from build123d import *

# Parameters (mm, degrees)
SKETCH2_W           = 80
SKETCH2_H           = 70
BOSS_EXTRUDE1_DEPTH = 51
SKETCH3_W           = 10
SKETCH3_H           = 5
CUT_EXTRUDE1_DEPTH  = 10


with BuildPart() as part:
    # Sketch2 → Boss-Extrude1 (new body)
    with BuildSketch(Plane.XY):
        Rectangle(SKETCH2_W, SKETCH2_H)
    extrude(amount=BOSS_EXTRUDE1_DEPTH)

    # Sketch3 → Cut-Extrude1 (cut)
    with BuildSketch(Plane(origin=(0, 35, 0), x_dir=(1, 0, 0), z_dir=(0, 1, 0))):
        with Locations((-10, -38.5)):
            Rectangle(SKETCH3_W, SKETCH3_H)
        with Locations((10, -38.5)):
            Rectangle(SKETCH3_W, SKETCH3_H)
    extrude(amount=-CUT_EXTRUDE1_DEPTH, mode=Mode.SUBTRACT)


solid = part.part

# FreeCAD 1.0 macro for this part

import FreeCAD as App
import Part
import Sketcher

doc = App.newDocument("Part")
body = doc.addObject("PartDesign::Body", "Body")

sketch1 = body.newObject("Sketcher::SketchObject", "Sketch")
sketch1.AttachmentSupport = (doc.getObject("XY_Plane"), [""])
sketch1.MapMode = "FlatFace"
sketch1.addGeometry([
    Part.LineSegment(App.Vector(-40, 35, 0), App.Vector(-40, -35, 0)),
    Part.LineSegment(App.Vector(-40, -35, 0), App.Vector(40, -35, 0)),
    Part.LineSegment(App.Vector(40, -35, 0), App.Vector(40, 35, 0)),
    Part.LineSegment(App.Vector(40, 35, 0), App.Vector(-40, 35, 0)),
], False)
sketch1.addConstraint([
    Sketcher.Constraint("Coincident", 0, 2, 1, 1),
    Sketcher.Constraint("Coincident", 1, 2, 2, 1),
    Sketcher.Constraint("Coincident", 2, 2, 3, 1),
    Sketcher.Constraint("Coincident", 3, 2, 0, 1),
    Sketcher.Constraint("Vertical", 0),
    Sketcher.Constraint("Horizontal", 1),
    Sketcher.Constraint("Vertical", 2),
    Sketcher.Constraint("Horizontal", 3),
    Sketcher.Constraint("Symmetric", 0, 2, 2, 2, -1, 1),
    Sketcher.Constraint("DistanceX", 1, 1, 1, 2, 80.0),
    Sketcher.Constraint("DistanceY", 0, 2, 0, 1, 70.0),
])
pad1 = body.newObject("PartDesign::Pad", "Pad")
pad1.Profile = sketch1
pad1.Length = 51

sketch2 = body.newObject("Sketcher::SketchObject", "Sketch001")
sketch2.AttachmentSupport = (doc.getObject("XZ_Plane"), [""])
sketch2.MapMode = "FlatFace"
sketch2.AttachmentOffset = App.Placement(App.Vector(0, 0, -35), App.Rotation())
sketch2.addGeometry([
    Part.LineSegment(App.Vector(-15, 36, 0), App.Vector(-15, 41, 0)),
    Part.LineSegment(App.Vector(-15, 41, 0), App.Vector(-5, 41, 0)),
    Part.LineSegment(App.Vector(-5, 41, 0), App.Vector(-5, 36, 0)),
    Part.LineSegment(App.Vector(-5, 36, 0), App.Vector(-15, 36, 0)),
    Part.LineSegment(App.Vector(5, 36, 0), App.Vector(5, 41, 0)),
    Part.LineSegment(App.Vector(5, 41, 0), App.Vector(15, 41, 0)),
    Part.LineSegment(App.Vector(15, 41, 0), App.Vector(15, 36, 0)),
    Part.LineSegment(App.Vector(15, 36, 0), App.Vector(5, 36, 0)),
], False)
sketch2.addConstraint([
    Sketcher.Constraint("Coincident", 0, 2, 1, 1),
    Sketcher.Constraint("Coincident", 1, 2, 2, 1),
    Sketcher.Constraint("Coincident", 2, 2, 3, 1),
    Sketcher.Constraint("Coincident", 3, 2, 0, 1),
    Sketcher.Constraint("Coincident", 4, 2, 5, 1),
    Sketcher.Constraint("Coincident", 5, 2, 6, 1),
    Sketcher.Constraint("Coincident", 6, 2, 7, 1),
    Sketcher.Constraint("Coincident", 7, 2, 4, 1),
    Sketcher.Constraint("Vertical", 0),
    Sketcher.Constraint("Horizontal", 1),
    Sketcher.Constraint("Vertical", 2),
    Sketcher.Constraint("Horizontal", 3),
    Sketcher.Constraint("Vertical", 4),
    Sketcher.Constraint("Horizontal", 5),
    Sketcher.Constraint("Vertical", 6),
    Sketcher.Constraint("Horizontal", 7),
    Sketcher.Constraint("Symmetric", 1, 2, 4, 2, -2),
    Sketcher.Constraint("Symmetric", 3, 2, 6, 2, -2),
    Sketcher.Constraint("DistanceX", 1, 1, 1, 2, 10.0),
    Sketcher.Constraint("DistanceY", 0, 1, 0, 2, 5.0),
    Sketcher.Constraint("DistanceX", 0, 2, -1, 1, 15.0),
    Sketcher.Constraint("DistanceY", -1, 1, 0, 2, 41.0),
])
pocket1 = body.newObject("PartDesign::Pocket", "Pocket")
pocket1.Profile = sketch2
pocket1.Length = 10
pocket1.Reversed = True

doc.recompute()
